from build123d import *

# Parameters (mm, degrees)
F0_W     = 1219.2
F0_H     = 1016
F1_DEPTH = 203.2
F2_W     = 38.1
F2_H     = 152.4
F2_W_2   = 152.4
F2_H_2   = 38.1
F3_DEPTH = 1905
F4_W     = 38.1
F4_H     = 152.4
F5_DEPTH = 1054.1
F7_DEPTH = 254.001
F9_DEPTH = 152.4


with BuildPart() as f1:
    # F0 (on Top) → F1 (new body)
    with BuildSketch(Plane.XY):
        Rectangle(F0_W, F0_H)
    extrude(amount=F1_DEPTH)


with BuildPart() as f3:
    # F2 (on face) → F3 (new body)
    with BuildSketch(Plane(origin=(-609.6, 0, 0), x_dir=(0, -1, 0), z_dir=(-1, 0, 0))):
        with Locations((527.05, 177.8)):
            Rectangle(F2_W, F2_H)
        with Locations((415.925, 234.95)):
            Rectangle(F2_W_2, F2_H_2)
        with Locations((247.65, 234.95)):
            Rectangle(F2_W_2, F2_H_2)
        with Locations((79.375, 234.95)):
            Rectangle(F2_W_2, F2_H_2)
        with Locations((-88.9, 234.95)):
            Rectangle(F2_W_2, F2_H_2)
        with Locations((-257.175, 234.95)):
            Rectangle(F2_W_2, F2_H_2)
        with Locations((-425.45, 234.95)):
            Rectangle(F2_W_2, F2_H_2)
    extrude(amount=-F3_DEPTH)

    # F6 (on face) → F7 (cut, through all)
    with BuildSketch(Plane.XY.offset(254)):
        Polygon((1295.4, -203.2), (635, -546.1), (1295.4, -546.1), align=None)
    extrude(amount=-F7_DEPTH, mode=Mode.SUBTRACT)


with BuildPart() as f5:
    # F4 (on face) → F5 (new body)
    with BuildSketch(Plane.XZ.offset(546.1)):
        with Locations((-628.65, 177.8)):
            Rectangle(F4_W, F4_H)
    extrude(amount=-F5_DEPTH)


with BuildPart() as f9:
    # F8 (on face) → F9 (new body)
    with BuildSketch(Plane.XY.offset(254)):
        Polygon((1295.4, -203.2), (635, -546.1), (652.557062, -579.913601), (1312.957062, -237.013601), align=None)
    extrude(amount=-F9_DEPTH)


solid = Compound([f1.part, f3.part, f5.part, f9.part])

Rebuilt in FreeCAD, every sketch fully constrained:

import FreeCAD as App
import Part
import Sketcher
from FreeCAD import Vector
Q = App.Units.Quantity

doc = App.newDocument("Part")
body = doc.addObject("PartDesign::Body", "Body")

# Sketch on XY plane
sketch1 = doc.addObject("Sketcher::SketchObject", "Sketch")
body.addObject(sketch1)
sketch1.AttachmentSupport = (doc.XY_Plane, [""])
sketch1.MapMode = "FlatFace"
sketch1.addGeometry([
    Part.LineSegment(Vector(-610, 508, 0), Vector(-610, -508, 0)),
    Part.LineSegment(Vector(-610, -508, 0), Vector(610, -508, 0)),
    Part.LineSegment(Vector(610, -508, 0), Vector(610, 508, 0)),
    Part.LineSegment(Vector(610, 508, 0), Vector(-610, 508, 0)),
], False)
sketch1.addConstraint([
    Sketcher.Constraint("Coincident", 0, 2, 1, 1),
    Sketcher.Constraint("Coincident", 1, 2, 2, 1),
    Sketcher.Constraint("Coincident", 2, 2, 3, 1),
    Sketcher.Constraint("Coincident", 3, 2, 0, 1),
    Sketcher.Constraint("Vertical", 0),
    Sketcher.Constraint("Horizontal", 1),
    Sketcher.Constraint("Vertical", 2),
    Sketcher.Constraint("Horizontal", 3),
    Sketcher.Constraint("Symmetric", 0, 2, 2, 2, -1, 1),
    Sketcher.Constraint("DistanceX", 1, 1, 1, 2, Q("48 in")),
    Sketcher.Constraint("DistanceY", 0, 2, 0, 1, Q("40 in")),
])
pad1 = doc.addObject("PartDesign::Pad", "Pad")
body.addObject(pad1)
pad1.Profile = sketch1
pad1.Length = Q("8 in")
body2 = doc.addObject("PartDesign::Body", "Body001")
body2.AllowCompound = True

# Sketch on YZ plane
sketch2 = doc.addObject("Sketcher::SketchObject", "Sketch001")
body2.addObject(sketch2)
sketch2.AttachmentSupport = (doc.getObject("YZ_Plane001"), [""])
sketch2.MapMode = "FlatFace"
sketch2.AttachmentOffset = App.Placement(Vector(0, 0, -24 * 25.4), App.Rotation())
sketch2.addGeometry([
    Part.LineSegment(Vector(-508, 254, 0), Vector(-508, 102, 0)),  # 0
    Part.LineSegment(Vector(-508, 102, 0), Vector(-546, 102, 0)),  # 1
    Part.LineSegment(Vector(-546, 102, 0), Vector(-546, 254, 0)),  # 2
    Part.LineSegment(Vector(-546, 254, 0), Vector(-508, 254, 0)),  # 3
    Part.LineSegment(Vector(-340, 254, 0), Vector(-340, 216, 0)),  # 4
    Part.LineSegment(Vector(-340, 216, 0), Vector(-492, 216, 0)),  # 5
    Part.LineSegment(Vector(-492, 216, 0), Vector(-492, 254, 0)),  # 6
    Part.LineSegment(Vector(-492, 254, 0), Vector(-340, 254, 0)),  # 7
    Part.LineSegment(Vector(-171, 254, 0), Vector(-171, 216, 0)),  # 8
    Part.LineSegment(Vector(-171, 216, 0), Vector(-324, 216, 0)),  # 9
    Part.LineSegment(Vector(-324, 216, 0), Vector(-324, 254, 0)),  # 10
    Part.LineSegment(Vector(-324, 254, 0), Vector(-171, 254, 0)),  # 11
    Part.LineSegment(Vector(-3, 254, 0), Vector(-3, 216, 0)),  # 12
    Part.LineSegment(Vector(-3, 216, 0), Vector(-156, 216, 0)),  # 13
    Part.LineSegment(Vector(-156, 216, 0), Vector(-156, 254, 0)),  # 14
    Part.LineSegment(Vector(-156, 254, 0), Vector(-3, 254, 0)),  # 15
    Part.LineSegment(Vector(165, 254, 0), Vector(165, 216, 0)),  # 16
    Part.LineSegment(Vector(165, 216, 0), Vector(13, 216, 0)),  # 17
    Part.LineSegment(Vector(13, 216, 0), Vector(13, 254, 0)),  # 18
    Part.LineSegment(Vector(13, 254, 0), Vector(165, 254, 0)),  # 19
    Part.LineSegment(Vector(333, 254, 0), Vector(333, 216, 0)),  # 20
    Part.LineSegment(Vector(333, 216, 0), Vector(181, 216, 0)),  # 21
    Part.LineSegment(Vector(181, 216, 0), Vector(181, 254, 0)),  # 22
    Part.LineSegment(Vector(181, 254, 0), Vector(333, 254, 0)),  # 23
    Part.LineSegment(Vector(502, 254, 0), Vector(502, 216, 0)),  # 24
    Part.LineSegment(Vector(502, 216, 0), Vector(349, 216, 0)),  # 25
    Part.LineSegment(Vector(349, 216, 0), Vector(349, 254, 0)),  # 26
    Part.LineSegment(Vector(349, 254, 0), Vector(502, 254, 0)),  # 27
], False)
sketch2.addConstraint([
    Sketcher.Constraint("Coincident", 0, 2, 1, 1),
    Sketcher.Constraint("Coincident", 1, 2, 2, 1),
    Sketcher.Constraint("Coincident", 2, 2, 3, 1),
    Sketcher.Constraint("Coincident", 3, 2, 0, 1),
    Sketcher.Constraint("Coincident", 4, 2, 5, 1),
    Sketcher.Constraint("Coincident", 5, 2, 6, 1),
    Sketcher.Constraint("Coincident", 6, 2, 7, 1),
    Sketcher.Constraint("Coincident", 7, 2, 4, 1),
    Sketcher.Constraint("Coincident", 8, 2, 9, 1),
    Sketcher.Constraint("Coincident", 9, 2, 10, 1),
    Sketcher.Constraint("Coincident", 10, 2, 11, 1),
    Sketcher.Constraint("Coincident", 11, 2, 8, 1),
    Sketcher.Constraint("Coincident", 12, 2, 13, 1),
    Sketcher.Constraint("Coincident", 13, 2, 14, 1),
    Sketcher.Constraint("Coincident", 14, 2, 15, 1),
    Sketcher.Constraint("Coincident", 15, 2, 12, 1),
    Sketcher.Constraint("Coincident", 16, 2, 17, 1),
    Sketcher.Constraint("Coincident", 17, 2, 18, 1),
    Sketcher.Constraint("Coincident", 18, 2, 19, 1),
    Sketcher.Constraint("Coincident", 19, 2, 16, 1),
    Sketcher.Constraint("Coincident", 20, 2, 21, 1),
    Sketcher.Constraint("Coincident", 21, 2, 22, 1),
    Sketcher.Constraint("Coincident", 22, 2, 23, 1),
    Sketcher.Constraint("Coincident", 23, 2, 20, 1),
    Sketcher.Constraint("Coincident", 24, 2, 25, 1),
    Sketcher.Constraint("Coincident", 25, 2, 26, 1),
    Sketcher.Constraint("Coincident", 26, 2, 27, 1),
    Sketcher.Constraint("Coincident", 27, 2, 24, 1),
    Sketcher.Constraint("Vertical", 0),
    Sketcher.Constraint("Horizontal", 1),
    Sketcher.Constraint("Vertical", 2),
    Sketcher.Constraint("Horizontal", 3),
    Sketcher.Constraint("Vertical", 4),
    Sketcher.Constraint("Horizontal", 5),
    Sketcher.Constraint("Vertical", 6),
    Sketcher.Constraint("Horizontal", 7),
    Sketcher.Constraint("Vertical", 8),
    Sketcher.Constraint("Horizontal", 9),
    Sketcher.Constraint("Vertical", 10),
    Sketcher.Constraint("Horizontal", 11),
    Sketcher.Constraint("Vertical", 12),
    Sketcher.Constraint("Horizontal", 13),
    Sketcher.Constraint("Vertical", 14),
    Sketcher.Constraint("Horizontal", 15),
    Sketcher.Constraint("Vertical", 16),
    Sketcher.Constraint("Horizontal", 17),
    Sketcher.Constraint("Vertical", 18),
    Sketcher.Constraint("Horizontal", 19),
    Sketcher.Constraint("Vertical", 20),
    Sketcher.Constraint("Horizontal", 21),
    Sketcher.Constraint("Vertical", 22),
    Sketcher.Constraint("Horizontal", 23),
    Sketcher.Constraint("Vertical", 24),
    Sketcher.Constraint("Horizontal", 25),
    Sketcher.Constraint("Vertical", 26),
    Sketcher.Constraint("Horizontal", 27),
    Sketcher.Constraint("Horizontal", 3, 2, 6, 2),
    Sketcher.Constraint("Horizontal", 5, 2, 8, 2),
    Sketcher.Constraint("Horizontal", 7, 2, 10, 2),
    Sketcher.Constraint("Horizontal", 9, 2, 12, 2),
    Sketcher.Constraint("Horizontal", 11, 2, 14, 2),
    Sketcher.Constraint("Horizontal", 13, 2, 16, 2),
    Sketcher.Constraint("Horizontal", 15, 2, 18, 2),
    Sketcher.Constraint("Horizontal", 17, 2, 20, 2),
    Sketcher.Constraint("Horizontal", 19, 2, 22, 2),
    Sketcher.Constraint("Horizontal", 21, 2, 24, 2),
    Sketcher.Constraint("Horizontal", 23, 2, 26, 2),
    Sketcher.Constraint("Equal", 7, 9),
    Sketcher.Constraint("Equal", 11, 13),
    Sketcher.Constraint("Equal", 15, 17),
    Sketcher.Constraint("Equal", 19, 21),
    Sketcher.Constraint("Equal", 23, 25),
    Sketcher.Constraint("Equal", 27, 0),
    Sketcher.Constraint("Equal", 3, 4),
    Sketcher.Constraint("DistanceX", 5, 2, 5, 1, Q("6 in")),
    Sketcher.Constraint("DistanceX", 1, 2, 1, 1, Q("1.5 in")),
    Sketcher.Constraint("DistanceX", 0, 2, -1, 1, Q("20 in")),
    Sketcher.Constraint("DistanceY", -1, 1, 0, 2, Q("4 in")),
    Sketcher.Constraint("DistanceX", -1, 1, 16, 2, Q("6.5 in")),
    Sketcher.Constraint("DistanceX", 8, 2, -1, 1, Q("6.75 in")),
    Sketcher.Constraint("DistanceX", -1, 1, 24, 2, Q("19.75 in")),
    Sketcher.Constraint("DistanceX", 4, 2, 12, 2, Q("13.25 in")),
    Sketcher.Constraint("DistanceX", 12, 2, 20, 2, Q("13.25 in")),
    Sketcher.Constraint("DistanceX", 4, 2, -1, 1, Q("13.375 in")),
])
pad2 = doc.addObject("PartDesign::Pad", "Pad001")
body2.addObject(pad2)
pad2.Profile = sketch2
pad2.Length = Q("75 in")

# Sketch on XY plane
sketch3 = doc.addObject("Sketcher::SketchObject", "Sketch002")
body2.addObject(sketch3)
sketch3.AttachmentSupport = (doc.getObject("XY_Plane001"), [""])
sketch3.MapMode = "FlatFace"
sketch3.AttachmentOffset = App.Placement(Vector(0, 0, 10 * 25.4), App.Rotation())
sketch3.addGeometry([
    Part.LineSegment(Vector(1295, -203, 0), Vector(635, -546, 0)),
    Part.LineSegment(Vector(635, -546, 0), Vector(1295, -546, 0)),
    Part.LineSegment(Vector(1295, -546, 0), Vector(1295, -203, 0)),
], False)
sketch3.addConstraint([
    Sketcher.Constraint("Coincident", 0, 2, 1, 1),
    Sketcher.Constraint("Coincident", 1, 2, 2, 1),
    Sketcher.Constraint("Coincident", 2, 2, 0, 1),
    Sketcher.Constraint("Horizontal", 1),
    Sketcher.Constraint("Vertical", 2),
    Sketcher.Constraint("DistanceX", 1, 1, 1, 2, Q("26 in")),
    Sketcher.Constraint("DistanceY", 2, 1, 2, 2, Q("13.5 in")),
    Sketcher.Constraint("DistanceX", -1, 1, 0, 2, Q("25 in")),
    Sketcher.Constraint("DistanceY", 2, 2, -1, 1, Q("8 in")),
])
pocket1 = doc.addObject("PartDesign::Pocket", "Pocket")
body2.addObject(pocket1)
pocket1.Profile = sketch3
pocket1.Type = "ThroughAll"
body3 = doc.addObject("PartDesign::Body", "Body002")

# Sketch on XZ plane
sketch4 = doc.addObject("Sketcher::SketchObject", "Sketch003")
body3.addObject(sketch4)
sketch4.AttachmentSupport = (doc.getObject("XZ_Plane002"), [""])
sketch4.MapMode = "FlatFace"
sketch4.AttachmentOffset = App.Placement(Vector(0, 0, 21.5 * 25.4), App.Rotation())
sketch4.addGeometry([
    Part.LineSegment(Vector(-648, 254, 0), Vector(-648, 102, 0)),
    Part.LineSegment(Vector(-648, 102, 0), Vector(-610, 102, 0)),
    Part.LineSegment(Vector(-610, 102, 0), Vector(-610, 254, 0)),
    Part.LineSegment(Vector(-610, 254, 0), Vector(-648, 254, 0)),
], False)
sketch4.addConstraint([
    Sketcher.Constraint("Coincident", 0, 2, 1, 1),
    Sketcher.Constraint("Coincident", 1, 2, 2, 1),
    Sketcher.Constraint("Coincident", 2, 2, 3, 1),
    Sketcher.Constraint("Coincident", 3, 2, 0, 1),
    Sketcher.Constraint("Vertical", 0),
    Sketcher.Constraint("Horizontal", 1),
    Sketcher.Constraint("Vertical", 2),
    Sketcher.Constraint("Horizontal", 3),
    Sketcher.Constraint("DistanceY", 0, 2, 0, 1, Q("6 in")),
    Sketcher.Constraint("DistanceX", 1, 1, 1, 2, Q("1.5 in")),
    Sketcher.Constraint("DistanceY", -1, 1, 0, 2, Q("4 in")),
    Sketcher.Constraint("DistanceX", 1, 2, -1, 1, Q("24 in")),
])
pad3 = doc.addObject("PartDesign::Pad", "Pad002")
body3.addObject(pad3)
pad3.Profile = sketch4
pad3.Length = Q("41.5 in")
pad3.Reversed = True
body4 = doc.addObject("PartDesign::Body", "Body003")

# Sketch on XY plane
sketch5 = doc.addObject("Sketcher::SketchObject", "Sketch004")
body4.addObject(sketch5)
sketch5.AttachmentSupport = (doc.getObject("XY_Plane003"), [""])
sketch5.MapMode = "FlatFace"
sketch5.AttachmentOffset = App.Placement(Vector(0, 0, 10 * 25.4), App.Rotation())
sketch5.addGeometry([
    Part.LineSegment(Vector(1295, -203, 0), Vector(635, -546, 0)),
    Part.LineSegment(Vector(635, -546, 0), Vector(653, -580, 0)),
    Part.LineSegment(Vector(653, -580, 0), Vector(1313, -237, 0)),
    Part.LineSegment(Vector(1313, -237, 0), Vector(1295, -203, 0)),
], False)
sketch5.addConstraint([
    Sketcher.Constraint("Coincident", 0, 2, 1, 1),
    Sketcher.Constraint("Coincident", 1, 2, 2, 1),
    Sketcher.Constraint("Coincident", 2, 2, 3, 1),
    Sketcher.Constraint("Coincident", 3, 2, 0, 1),
    Sketcher.Constraint("Perpendicular", 0, 1),
    Sketcher.Constraint("Perpendicular", 1, 2),
    Sketcher.Constraint("Perpendicular", 2, 3),
    Sketcher.Constraint("DistanceX", -1, 1, 0, 2, Q("25 in")),
    Sketcher.Constraint("DistanceX", -1, 1, 3, 2, Q("51 in")),
    Sketcher.Constraint("DistanceY", 3, 2, -1, 1, Q("8 in")),
    Sketcher.Constraint("Distance", 1, Q("1.5 in")),
    Sketcher.Constraint("DistanceY", 0, 2, -1, 1, Q("21.5 in")),
])
pad4 = doc.addObject("PartDesign::Pad", "Pad003")
body4.addObject(pad4)
pad4.Profile = sketch5
pad4.Length = Q("6 in")
pad4.Reversed = True

doc.recompute()
